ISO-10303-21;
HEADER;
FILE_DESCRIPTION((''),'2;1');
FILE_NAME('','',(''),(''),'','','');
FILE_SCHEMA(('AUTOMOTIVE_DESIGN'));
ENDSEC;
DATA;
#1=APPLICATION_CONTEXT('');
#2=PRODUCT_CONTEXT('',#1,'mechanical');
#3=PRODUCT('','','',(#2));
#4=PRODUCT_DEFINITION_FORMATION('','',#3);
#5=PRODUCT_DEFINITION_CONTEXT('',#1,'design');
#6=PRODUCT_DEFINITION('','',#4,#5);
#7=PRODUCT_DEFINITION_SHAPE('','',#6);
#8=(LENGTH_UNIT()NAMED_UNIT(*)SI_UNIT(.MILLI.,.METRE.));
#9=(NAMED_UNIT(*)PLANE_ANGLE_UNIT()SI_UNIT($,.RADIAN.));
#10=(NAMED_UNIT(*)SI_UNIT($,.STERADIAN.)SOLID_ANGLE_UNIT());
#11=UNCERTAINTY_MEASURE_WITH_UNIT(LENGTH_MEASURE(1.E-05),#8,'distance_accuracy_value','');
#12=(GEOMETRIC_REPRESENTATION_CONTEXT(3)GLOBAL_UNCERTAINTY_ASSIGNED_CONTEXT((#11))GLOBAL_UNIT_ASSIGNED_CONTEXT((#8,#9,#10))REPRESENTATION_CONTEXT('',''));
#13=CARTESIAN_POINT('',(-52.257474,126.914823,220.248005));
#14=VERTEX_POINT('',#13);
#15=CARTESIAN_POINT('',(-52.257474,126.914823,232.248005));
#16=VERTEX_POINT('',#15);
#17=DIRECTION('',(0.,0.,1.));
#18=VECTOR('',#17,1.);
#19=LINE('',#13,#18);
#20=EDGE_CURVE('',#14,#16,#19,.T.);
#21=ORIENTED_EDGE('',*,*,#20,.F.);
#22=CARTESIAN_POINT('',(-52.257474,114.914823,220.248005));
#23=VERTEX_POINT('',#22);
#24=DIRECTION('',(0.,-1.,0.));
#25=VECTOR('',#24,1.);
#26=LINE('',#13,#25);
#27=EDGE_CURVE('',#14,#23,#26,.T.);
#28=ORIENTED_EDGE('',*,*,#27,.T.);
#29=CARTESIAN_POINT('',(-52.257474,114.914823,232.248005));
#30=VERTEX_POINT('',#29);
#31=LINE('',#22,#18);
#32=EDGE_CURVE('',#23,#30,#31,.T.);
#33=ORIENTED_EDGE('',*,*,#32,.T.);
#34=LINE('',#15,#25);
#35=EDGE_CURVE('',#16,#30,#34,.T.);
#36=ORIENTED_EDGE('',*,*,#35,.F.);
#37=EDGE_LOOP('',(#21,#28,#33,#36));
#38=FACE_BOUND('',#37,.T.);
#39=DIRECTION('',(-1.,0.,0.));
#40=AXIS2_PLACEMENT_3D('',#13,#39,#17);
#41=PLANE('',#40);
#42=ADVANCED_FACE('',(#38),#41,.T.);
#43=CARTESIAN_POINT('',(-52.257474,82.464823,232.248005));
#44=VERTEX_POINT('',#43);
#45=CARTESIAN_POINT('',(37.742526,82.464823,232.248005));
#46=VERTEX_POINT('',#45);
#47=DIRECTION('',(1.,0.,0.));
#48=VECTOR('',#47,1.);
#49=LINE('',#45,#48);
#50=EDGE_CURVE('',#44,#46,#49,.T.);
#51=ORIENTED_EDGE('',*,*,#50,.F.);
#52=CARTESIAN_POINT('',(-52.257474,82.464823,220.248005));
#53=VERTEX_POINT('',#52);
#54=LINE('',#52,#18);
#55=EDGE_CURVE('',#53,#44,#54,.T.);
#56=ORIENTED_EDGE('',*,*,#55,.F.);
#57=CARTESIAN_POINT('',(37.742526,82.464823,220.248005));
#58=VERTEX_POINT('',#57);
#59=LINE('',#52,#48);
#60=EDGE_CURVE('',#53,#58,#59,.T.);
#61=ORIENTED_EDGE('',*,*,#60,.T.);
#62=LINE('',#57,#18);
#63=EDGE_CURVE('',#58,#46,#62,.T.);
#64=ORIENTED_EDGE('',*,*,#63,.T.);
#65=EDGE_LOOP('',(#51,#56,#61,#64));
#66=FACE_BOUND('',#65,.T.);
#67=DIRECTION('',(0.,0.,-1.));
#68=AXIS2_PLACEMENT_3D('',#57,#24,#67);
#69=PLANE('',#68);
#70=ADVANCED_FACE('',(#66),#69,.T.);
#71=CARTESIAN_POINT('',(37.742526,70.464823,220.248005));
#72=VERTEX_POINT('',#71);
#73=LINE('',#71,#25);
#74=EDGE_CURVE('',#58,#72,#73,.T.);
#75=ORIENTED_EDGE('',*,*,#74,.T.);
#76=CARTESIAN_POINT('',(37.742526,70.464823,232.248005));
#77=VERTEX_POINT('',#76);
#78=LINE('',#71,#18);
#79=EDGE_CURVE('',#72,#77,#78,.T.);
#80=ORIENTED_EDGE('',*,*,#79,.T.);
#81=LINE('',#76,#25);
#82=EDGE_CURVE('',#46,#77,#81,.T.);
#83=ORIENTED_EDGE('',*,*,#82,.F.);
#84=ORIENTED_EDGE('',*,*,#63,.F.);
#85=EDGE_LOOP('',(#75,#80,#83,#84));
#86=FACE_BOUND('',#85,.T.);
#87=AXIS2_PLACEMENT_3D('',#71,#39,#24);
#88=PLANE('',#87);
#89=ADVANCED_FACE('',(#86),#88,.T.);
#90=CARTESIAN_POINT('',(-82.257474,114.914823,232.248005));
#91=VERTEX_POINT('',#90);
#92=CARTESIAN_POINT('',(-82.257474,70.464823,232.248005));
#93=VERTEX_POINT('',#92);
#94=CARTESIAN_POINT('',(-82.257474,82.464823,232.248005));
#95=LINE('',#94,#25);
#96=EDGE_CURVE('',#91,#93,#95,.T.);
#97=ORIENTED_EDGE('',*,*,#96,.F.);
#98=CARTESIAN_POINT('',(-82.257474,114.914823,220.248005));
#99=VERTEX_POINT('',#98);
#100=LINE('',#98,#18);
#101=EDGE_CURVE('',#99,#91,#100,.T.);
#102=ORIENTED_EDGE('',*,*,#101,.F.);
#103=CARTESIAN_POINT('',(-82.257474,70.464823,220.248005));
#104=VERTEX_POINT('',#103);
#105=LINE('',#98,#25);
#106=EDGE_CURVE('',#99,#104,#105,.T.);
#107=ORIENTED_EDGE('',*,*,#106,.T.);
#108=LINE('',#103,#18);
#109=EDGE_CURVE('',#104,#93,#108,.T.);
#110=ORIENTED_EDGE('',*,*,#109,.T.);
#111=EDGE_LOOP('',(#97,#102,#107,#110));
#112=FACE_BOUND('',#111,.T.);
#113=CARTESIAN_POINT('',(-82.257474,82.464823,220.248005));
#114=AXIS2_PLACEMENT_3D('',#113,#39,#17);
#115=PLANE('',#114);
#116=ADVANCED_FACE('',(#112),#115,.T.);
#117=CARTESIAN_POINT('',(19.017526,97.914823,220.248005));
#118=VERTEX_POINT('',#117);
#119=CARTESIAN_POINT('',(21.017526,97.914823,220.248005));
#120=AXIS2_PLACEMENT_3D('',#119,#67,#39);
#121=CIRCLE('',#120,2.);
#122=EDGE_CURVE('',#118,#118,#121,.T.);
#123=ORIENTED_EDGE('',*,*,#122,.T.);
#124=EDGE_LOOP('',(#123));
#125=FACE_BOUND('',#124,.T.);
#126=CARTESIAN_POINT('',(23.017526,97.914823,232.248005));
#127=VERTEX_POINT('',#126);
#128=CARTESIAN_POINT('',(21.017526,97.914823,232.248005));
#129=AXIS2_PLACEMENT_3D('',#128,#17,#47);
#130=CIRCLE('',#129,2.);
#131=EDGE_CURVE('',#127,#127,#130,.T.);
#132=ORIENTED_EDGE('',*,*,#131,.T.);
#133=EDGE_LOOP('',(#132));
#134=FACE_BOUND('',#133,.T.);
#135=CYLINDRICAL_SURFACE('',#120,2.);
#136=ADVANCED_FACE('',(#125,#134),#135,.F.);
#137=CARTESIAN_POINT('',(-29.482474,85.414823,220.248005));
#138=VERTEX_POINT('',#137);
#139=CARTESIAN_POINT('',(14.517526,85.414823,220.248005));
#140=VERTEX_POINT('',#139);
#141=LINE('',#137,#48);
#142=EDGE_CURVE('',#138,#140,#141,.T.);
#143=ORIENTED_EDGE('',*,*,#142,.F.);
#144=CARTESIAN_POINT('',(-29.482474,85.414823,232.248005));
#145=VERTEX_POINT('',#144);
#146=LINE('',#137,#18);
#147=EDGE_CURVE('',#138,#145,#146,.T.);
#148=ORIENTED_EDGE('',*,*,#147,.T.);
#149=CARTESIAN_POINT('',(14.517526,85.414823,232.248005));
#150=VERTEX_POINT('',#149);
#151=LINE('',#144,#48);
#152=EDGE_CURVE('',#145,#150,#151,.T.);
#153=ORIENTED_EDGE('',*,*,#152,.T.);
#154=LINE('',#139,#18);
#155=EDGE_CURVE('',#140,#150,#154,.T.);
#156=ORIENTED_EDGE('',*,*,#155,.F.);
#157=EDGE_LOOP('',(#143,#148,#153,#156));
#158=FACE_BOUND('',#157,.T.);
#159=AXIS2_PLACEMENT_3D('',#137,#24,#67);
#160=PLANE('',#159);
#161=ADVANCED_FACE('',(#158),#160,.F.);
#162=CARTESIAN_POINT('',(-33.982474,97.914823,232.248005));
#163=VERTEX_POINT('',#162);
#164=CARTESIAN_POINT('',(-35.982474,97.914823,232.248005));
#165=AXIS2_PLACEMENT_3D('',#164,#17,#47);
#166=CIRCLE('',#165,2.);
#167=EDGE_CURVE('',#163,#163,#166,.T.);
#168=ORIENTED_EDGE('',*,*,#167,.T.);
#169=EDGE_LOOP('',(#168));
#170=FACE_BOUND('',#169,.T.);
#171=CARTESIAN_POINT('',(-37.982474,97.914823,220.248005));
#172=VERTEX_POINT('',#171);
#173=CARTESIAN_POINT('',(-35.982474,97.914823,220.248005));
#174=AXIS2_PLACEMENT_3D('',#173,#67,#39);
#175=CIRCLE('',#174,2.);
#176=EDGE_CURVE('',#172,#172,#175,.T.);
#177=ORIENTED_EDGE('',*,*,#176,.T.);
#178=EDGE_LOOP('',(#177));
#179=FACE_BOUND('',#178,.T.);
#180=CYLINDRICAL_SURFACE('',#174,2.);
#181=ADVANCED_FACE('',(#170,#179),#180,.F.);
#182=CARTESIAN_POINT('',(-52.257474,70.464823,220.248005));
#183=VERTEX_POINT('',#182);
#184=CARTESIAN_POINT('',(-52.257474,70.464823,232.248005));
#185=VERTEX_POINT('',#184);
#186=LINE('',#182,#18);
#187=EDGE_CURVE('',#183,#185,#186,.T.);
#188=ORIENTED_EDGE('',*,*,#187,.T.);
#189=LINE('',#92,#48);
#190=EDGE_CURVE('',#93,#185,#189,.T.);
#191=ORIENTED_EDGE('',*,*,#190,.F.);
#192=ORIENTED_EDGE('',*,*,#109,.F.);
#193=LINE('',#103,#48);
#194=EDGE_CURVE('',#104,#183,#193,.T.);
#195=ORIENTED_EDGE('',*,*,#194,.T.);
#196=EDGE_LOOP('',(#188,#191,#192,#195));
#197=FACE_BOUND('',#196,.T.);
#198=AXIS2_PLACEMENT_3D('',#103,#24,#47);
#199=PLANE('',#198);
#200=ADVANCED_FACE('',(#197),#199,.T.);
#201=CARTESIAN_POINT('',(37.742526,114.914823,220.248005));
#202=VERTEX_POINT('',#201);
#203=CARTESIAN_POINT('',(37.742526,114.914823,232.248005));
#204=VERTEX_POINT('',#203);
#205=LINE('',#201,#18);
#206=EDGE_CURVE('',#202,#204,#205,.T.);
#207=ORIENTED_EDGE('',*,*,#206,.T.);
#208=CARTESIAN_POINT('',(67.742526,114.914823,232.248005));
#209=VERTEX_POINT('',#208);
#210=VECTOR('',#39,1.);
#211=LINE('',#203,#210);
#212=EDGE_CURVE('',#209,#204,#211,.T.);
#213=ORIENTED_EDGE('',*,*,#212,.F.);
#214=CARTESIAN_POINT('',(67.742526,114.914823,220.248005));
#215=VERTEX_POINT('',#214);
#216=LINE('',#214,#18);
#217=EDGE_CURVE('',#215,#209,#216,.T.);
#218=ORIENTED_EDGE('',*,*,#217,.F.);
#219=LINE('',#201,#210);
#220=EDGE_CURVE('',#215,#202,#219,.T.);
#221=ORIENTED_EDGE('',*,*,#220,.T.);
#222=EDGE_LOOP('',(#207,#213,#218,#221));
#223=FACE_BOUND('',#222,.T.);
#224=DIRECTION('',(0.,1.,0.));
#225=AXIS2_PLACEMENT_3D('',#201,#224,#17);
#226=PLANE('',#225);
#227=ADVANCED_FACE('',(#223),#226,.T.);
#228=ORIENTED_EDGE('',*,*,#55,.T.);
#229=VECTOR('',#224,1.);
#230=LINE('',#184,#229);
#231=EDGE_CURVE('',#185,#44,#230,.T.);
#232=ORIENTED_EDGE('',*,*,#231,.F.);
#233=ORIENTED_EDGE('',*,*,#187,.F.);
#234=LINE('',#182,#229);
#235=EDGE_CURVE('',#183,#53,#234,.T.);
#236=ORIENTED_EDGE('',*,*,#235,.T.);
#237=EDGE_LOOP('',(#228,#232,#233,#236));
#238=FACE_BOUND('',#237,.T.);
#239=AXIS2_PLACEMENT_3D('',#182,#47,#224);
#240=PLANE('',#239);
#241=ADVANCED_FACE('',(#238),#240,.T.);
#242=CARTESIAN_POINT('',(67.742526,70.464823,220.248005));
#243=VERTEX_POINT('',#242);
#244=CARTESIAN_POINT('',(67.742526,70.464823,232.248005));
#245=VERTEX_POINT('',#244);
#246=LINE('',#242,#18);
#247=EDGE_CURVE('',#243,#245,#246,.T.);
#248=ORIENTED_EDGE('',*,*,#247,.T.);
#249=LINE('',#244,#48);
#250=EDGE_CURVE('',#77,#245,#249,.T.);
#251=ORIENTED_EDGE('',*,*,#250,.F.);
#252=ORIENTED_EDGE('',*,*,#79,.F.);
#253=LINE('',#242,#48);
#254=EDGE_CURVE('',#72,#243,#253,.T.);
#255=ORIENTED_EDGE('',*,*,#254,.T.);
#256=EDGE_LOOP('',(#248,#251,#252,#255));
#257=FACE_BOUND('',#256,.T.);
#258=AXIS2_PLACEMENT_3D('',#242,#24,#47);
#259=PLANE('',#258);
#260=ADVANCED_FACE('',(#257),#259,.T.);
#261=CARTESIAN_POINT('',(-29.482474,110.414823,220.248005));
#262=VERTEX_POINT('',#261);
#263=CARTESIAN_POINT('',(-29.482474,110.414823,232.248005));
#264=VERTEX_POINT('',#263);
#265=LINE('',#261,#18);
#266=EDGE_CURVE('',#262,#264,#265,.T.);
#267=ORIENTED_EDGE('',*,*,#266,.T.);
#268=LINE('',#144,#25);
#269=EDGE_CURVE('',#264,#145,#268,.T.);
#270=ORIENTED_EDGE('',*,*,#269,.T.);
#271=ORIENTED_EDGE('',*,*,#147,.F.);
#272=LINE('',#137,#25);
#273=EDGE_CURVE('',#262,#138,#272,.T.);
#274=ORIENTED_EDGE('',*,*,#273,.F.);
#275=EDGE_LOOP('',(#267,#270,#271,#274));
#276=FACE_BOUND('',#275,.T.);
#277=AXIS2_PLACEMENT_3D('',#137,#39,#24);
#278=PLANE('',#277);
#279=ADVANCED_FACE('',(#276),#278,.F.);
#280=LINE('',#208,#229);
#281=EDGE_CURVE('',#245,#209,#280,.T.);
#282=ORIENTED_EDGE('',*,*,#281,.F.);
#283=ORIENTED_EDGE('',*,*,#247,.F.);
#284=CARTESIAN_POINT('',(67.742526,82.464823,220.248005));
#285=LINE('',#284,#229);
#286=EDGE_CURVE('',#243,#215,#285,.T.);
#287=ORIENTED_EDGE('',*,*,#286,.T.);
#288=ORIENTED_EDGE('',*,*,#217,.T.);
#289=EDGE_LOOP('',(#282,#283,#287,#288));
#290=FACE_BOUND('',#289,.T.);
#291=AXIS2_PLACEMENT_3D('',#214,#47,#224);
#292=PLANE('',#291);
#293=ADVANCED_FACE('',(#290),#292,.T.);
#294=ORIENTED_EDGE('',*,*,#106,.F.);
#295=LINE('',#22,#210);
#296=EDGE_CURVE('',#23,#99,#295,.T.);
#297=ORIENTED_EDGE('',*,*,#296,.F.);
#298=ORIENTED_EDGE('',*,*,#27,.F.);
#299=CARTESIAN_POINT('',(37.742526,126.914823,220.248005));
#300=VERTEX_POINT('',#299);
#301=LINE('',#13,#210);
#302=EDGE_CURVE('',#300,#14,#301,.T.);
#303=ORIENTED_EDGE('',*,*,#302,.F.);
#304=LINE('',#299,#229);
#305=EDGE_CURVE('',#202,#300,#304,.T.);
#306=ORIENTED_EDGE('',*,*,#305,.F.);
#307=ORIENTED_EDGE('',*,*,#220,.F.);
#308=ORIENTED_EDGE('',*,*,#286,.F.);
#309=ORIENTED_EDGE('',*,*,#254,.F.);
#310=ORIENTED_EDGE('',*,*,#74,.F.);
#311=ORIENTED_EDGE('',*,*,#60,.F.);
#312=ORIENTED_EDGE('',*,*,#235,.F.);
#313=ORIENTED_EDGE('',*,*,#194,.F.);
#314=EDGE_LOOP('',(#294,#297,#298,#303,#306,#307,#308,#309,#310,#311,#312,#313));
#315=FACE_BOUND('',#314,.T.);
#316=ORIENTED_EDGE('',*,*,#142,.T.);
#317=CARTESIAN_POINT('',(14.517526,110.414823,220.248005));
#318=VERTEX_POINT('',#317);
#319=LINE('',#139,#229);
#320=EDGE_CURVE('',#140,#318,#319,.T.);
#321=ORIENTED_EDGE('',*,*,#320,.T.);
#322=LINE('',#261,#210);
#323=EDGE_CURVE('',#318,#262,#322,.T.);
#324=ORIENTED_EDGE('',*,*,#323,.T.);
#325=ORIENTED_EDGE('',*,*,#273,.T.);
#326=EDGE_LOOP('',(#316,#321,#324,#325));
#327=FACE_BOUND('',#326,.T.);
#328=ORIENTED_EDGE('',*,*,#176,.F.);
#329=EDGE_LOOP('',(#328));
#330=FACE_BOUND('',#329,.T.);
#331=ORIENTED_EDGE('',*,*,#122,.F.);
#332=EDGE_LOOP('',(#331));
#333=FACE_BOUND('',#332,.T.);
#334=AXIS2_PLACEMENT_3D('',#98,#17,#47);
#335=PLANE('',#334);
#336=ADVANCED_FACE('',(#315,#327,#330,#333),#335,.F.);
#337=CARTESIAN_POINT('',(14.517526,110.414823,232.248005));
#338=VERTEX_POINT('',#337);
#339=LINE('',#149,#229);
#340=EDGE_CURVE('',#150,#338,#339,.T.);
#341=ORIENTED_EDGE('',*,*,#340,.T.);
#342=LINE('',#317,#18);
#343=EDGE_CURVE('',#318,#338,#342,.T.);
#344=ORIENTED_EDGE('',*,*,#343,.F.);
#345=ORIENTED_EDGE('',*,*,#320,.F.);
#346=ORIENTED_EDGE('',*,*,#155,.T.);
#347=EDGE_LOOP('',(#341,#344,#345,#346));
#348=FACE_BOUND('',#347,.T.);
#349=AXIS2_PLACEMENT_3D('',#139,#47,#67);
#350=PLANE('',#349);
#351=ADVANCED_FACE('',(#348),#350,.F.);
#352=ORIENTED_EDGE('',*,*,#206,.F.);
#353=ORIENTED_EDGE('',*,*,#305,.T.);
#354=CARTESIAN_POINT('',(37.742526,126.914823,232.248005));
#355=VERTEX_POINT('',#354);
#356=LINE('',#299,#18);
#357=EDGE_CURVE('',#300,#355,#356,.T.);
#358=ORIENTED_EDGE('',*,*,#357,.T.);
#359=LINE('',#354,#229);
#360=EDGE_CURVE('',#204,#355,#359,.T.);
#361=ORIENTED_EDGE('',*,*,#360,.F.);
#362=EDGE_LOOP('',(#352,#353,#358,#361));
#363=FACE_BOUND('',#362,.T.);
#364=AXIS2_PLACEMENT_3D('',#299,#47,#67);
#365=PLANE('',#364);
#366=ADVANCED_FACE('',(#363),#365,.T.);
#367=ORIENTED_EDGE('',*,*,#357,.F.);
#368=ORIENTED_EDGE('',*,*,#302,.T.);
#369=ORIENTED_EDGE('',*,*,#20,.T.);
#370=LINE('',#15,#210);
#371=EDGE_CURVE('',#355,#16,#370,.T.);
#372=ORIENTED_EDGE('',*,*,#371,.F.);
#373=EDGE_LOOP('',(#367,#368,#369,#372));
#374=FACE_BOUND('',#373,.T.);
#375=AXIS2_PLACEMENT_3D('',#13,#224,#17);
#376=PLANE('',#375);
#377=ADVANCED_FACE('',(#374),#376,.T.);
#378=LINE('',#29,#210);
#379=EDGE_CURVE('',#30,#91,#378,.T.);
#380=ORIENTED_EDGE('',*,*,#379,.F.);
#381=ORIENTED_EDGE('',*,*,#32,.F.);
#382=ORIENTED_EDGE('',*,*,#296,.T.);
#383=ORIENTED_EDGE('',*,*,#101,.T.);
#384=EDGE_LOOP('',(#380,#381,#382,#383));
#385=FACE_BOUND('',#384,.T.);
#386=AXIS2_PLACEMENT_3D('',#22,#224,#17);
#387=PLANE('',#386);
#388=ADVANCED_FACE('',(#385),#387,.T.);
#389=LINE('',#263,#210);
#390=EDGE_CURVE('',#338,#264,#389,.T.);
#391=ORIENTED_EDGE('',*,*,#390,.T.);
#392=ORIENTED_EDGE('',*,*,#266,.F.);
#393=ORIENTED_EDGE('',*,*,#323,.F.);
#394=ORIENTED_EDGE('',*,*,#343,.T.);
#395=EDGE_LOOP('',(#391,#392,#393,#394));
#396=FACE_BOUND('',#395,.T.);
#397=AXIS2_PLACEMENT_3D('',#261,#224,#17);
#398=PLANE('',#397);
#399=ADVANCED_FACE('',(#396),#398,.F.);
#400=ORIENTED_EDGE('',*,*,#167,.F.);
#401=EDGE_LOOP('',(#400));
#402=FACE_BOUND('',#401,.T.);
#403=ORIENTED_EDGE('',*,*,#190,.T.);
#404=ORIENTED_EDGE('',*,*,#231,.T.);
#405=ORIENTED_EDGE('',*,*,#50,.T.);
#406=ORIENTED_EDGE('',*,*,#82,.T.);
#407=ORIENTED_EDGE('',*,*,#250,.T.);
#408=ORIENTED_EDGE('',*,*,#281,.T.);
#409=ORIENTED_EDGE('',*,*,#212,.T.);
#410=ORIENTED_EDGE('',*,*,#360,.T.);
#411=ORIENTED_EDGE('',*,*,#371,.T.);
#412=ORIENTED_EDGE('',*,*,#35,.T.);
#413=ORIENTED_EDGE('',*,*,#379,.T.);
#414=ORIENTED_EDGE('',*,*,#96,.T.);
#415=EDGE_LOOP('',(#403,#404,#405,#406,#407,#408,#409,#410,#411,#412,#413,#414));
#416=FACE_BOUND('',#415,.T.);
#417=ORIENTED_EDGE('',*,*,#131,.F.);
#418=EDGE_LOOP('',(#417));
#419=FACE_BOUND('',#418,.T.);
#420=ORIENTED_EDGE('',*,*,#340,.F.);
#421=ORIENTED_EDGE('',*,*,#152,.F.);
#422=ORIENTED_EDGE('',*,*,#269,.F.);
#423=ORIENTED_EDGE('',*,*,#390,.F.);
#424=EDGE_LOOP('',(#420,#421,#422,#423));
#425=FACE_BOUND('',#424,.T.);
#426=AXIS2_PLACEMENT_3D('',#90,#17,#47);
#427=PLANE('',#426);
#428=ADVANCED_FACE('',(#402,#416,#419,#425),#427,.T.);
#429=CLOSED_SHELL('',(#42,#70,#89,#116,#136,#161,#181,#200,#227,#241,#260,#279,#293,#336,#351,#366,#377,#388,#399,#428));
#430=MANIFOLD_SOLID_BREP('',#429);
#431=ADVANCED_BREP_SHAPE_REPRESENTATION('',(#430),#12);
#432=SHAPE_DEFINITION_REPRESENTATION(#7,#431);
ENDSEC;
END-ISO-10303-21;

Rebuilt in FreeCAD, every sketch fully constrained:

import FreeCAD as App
import Part
import Sketcher
Q = App.Units.Quantity


def add_polygon(sketch, points):
    """Adds a closed chain of lines whose ends are joined by coincident constraints."""
    first, n = sketch.GeometryCount, len(points)
    for a, b in zip(points, points[1:] + points[:1]):
        sketch.addGeometry(Part.LineSegment(App.Vector(*a, 0), App.Vector(*b, 0)), False)
    for i in range(n):
        sketch.addConstraint(Sketcher.Constraint("Coincident", first + i, 2, first + (i + 1) % n, 1))

doc = App.newDocument("Part")
params = doc.addObject("Spreadsheet::Sheet", "Params")
for row, (alias, value) in enumerate([
    ("sketch1_width", "30 mm"),
    ("sketch1_width2", "90 mm"),
    ("sketch1_width3", "44 mm"),
    ("sketch1_height", "12 mm"),
    ("sketch1_height2", "25 mm"),
    ("pad1_length", "12 mm"),
    ("sketch2_diameter", "4 mm"),
    ("hole_diameter", "4 mm"),
    ("hole_depth", "25 mm"),
], start=1):
    params.set(f"A{row}", alias)
    params.set(f"B{row}", "=" + value)
    params.setAlias(f"B{row}", alias)

body = doc.addObject("PartDesign::Body", "Body")

# Sketch on XY plane
sketch1 = doc.addObject("Sketcher::SketchObject", "Sketch")
body.addObject(sketch1)
sketch1.AttachmentSupport = (doc.XY_Plane, [""])
sketch1.MapMode = "FlatFace"
sketch1.AttachmentOffset = App.Placement(App.Vector(0, 0, 232.248005), App.Rotation())
add_polygon(sketch1, [(-82, 115), (-82, 70), (-52, 70), (-52, 82), (38, 82), (38, 70), (68, 70), (68, 115), (38, 115), (38, 127), (-52, 127), (-52, 115)])  # lines 0-11
add_polygon(sketch1, [(15, 85), (-29, 85), (-29, 110), (15, 110)])  # lines 12-15
sketch1.addConstraint([
    Sketcher.Constraint("Vertical", 0),
    Sketcher.Constraint("Horizontal", 1),
    Sketcher.Constraint("Vertical", 2),
    Sketcher.Constraint("Horizontal", 3),
    Sketcher.Constraint("Vertical", 4),
    Sketcher.Constraint("Horizontal", 5),
    Sketcher.Constraint("Vertical", 6),
    Sketcher.Constraint("Horizontal", 7),
    Sketcher.Constraint("Vertical", 8),
    Sketcher.Constraint("Horizontal", 9),
    Sketcher.Constraint("Vertical", 10),
    Sketcher.Constraint("Horizontal", 11),
    Sketcher.Constraint("Horizontal", 12),
    Sketcher.Constraint("Vertical", 13),
    Sketcher.Constraint("Horizontal", 14),
    Sketcher.Constraint("Vertical", 15),
    Sketcher.Constraint("Horizontal", 1, 2, 4, 2),
    Sketcher.Constraint("Horizontal", 7, 2, 10, 2),
    Sketcher.Constraint("Vertical", 4, 2, 7, 2),
    Sketcher.Constraint("Vertical", 2, 2, 9, 2),
    Sketcher.Constraint("Equal", 1, 5),
    Sketcher.Constraint("Equal", 4, 8),
    Sketcher.Constraint("DistanceX", 1, 1, 1, 2, Q("30 mm")),
    Sketcher.Constraint("DistanceX", 3, 1, 3, 2, Q("90 mm")),
    Sketcher.Constraint("DistanceX", 12, 2, 12, 1, Q("44 mm")),
    Sketcher.Constraint("DistanceY", 2, 1, 2, 2, Q("12 mm")),
    Sketcher.Constraint("DistanceY", 13, 1, 13, 2, Q("25 mm")),
    Sketcher.Constraint("DistanceY", 0, 2, 0, 1, Q("44.45 mm")),
    Sketcher.Constraint("DistanceY", 12, 2, 10, 2, Q("29.5 mm")),
    Sketcher.Constraint("DistanceX", 2, 2, 12, 2, Q("22.775 mm")),
    Sketcher.Constraint("DistanceX", 0, 2, -1, 1, Q("82.257474 mm")),
    Sketcher.Constraint("DistanceY", -1, 1, 0, 2, Q("70.464823 mm")),
])
sketch1.setExpression("Constraints[38]", "Params.sketch1_width")
sketch1.setExpression("Constraints[39]", "Params.sketch1_width2")
sketch1.setExpression("Constraints[40]", "Params.sketch1_width3")
sketch1.setExpression("Constraints[41]", "Params.sketch1_height")
sketch1.setExpression("Constraints[42]", "Params.sketch1_height2")
pad1 = doc.addObject("PartDesign::Pad", "Pad")
body.addObject(pad1)
pad1.Profile = sketch1
pad1.setExpression("Length", "Params.pad1_length")
pad1.Reversed = True

# Sketch on XY plane
sketch2 = doc.addObject("Sketcher::SketchObject", "Sketch001")
body.addObject(sketch2)
sketch2.AttachmentSupport = (doc.XY_Plane, [""])
sketch2.MapMode = "FlatFace"
sketch2.AttachmentOffset = App.Placement(App.Vector(0, 0, 220.248005), App.Rotation())
sketch2.addGeometry([
    Part.Circle(App.Vector(21, 97.9, 0), App.Vector(0, 0, 1), 2),
    Part.Circle(App.Vector(-36, 97.9, 0), App.Vector(0, 0, 1), 2),
], False)
sketch2.addConstraint([
    Sketcher.Constraint("Equal", 0, 1),
    Sketcher.Constraint("Horizontal", 0, 3, 1, 3),
    Sketcher.Constraint("Diameter", 0, Q("4 mm")),
    Sketcher.Constraint("DistanceX", 1, 3, 0, 3, Q("57 mm")),
    Sketcher.Constraint("DistanceX", -1, 1, 0, 3, Q("21.017526 mm")),
    Sketcher.Constraint("DistanceY", -1, 1, 0, 3, Q("97.914823 mm")),
])
sketch2.setExpression("Constraints[2]", "Params.sketch2_diameter")
doc.recompute()
hole = doc.addObject("PartDesign::Hole", "Hole")
body.addObject(hole)
hole.Profile = sketch2
hole.ThreadType = "None"
hole.setExpression("Diameter", "Params.hole_diameter")
hole.DepthType = "Dimension"
hole.setExpression("Depth", "Params.hole_depth")
hole.DrillPoint = "Angled"
hole.DrillPointAngle = 118
hole.Reversed = True

doc.recompute()
